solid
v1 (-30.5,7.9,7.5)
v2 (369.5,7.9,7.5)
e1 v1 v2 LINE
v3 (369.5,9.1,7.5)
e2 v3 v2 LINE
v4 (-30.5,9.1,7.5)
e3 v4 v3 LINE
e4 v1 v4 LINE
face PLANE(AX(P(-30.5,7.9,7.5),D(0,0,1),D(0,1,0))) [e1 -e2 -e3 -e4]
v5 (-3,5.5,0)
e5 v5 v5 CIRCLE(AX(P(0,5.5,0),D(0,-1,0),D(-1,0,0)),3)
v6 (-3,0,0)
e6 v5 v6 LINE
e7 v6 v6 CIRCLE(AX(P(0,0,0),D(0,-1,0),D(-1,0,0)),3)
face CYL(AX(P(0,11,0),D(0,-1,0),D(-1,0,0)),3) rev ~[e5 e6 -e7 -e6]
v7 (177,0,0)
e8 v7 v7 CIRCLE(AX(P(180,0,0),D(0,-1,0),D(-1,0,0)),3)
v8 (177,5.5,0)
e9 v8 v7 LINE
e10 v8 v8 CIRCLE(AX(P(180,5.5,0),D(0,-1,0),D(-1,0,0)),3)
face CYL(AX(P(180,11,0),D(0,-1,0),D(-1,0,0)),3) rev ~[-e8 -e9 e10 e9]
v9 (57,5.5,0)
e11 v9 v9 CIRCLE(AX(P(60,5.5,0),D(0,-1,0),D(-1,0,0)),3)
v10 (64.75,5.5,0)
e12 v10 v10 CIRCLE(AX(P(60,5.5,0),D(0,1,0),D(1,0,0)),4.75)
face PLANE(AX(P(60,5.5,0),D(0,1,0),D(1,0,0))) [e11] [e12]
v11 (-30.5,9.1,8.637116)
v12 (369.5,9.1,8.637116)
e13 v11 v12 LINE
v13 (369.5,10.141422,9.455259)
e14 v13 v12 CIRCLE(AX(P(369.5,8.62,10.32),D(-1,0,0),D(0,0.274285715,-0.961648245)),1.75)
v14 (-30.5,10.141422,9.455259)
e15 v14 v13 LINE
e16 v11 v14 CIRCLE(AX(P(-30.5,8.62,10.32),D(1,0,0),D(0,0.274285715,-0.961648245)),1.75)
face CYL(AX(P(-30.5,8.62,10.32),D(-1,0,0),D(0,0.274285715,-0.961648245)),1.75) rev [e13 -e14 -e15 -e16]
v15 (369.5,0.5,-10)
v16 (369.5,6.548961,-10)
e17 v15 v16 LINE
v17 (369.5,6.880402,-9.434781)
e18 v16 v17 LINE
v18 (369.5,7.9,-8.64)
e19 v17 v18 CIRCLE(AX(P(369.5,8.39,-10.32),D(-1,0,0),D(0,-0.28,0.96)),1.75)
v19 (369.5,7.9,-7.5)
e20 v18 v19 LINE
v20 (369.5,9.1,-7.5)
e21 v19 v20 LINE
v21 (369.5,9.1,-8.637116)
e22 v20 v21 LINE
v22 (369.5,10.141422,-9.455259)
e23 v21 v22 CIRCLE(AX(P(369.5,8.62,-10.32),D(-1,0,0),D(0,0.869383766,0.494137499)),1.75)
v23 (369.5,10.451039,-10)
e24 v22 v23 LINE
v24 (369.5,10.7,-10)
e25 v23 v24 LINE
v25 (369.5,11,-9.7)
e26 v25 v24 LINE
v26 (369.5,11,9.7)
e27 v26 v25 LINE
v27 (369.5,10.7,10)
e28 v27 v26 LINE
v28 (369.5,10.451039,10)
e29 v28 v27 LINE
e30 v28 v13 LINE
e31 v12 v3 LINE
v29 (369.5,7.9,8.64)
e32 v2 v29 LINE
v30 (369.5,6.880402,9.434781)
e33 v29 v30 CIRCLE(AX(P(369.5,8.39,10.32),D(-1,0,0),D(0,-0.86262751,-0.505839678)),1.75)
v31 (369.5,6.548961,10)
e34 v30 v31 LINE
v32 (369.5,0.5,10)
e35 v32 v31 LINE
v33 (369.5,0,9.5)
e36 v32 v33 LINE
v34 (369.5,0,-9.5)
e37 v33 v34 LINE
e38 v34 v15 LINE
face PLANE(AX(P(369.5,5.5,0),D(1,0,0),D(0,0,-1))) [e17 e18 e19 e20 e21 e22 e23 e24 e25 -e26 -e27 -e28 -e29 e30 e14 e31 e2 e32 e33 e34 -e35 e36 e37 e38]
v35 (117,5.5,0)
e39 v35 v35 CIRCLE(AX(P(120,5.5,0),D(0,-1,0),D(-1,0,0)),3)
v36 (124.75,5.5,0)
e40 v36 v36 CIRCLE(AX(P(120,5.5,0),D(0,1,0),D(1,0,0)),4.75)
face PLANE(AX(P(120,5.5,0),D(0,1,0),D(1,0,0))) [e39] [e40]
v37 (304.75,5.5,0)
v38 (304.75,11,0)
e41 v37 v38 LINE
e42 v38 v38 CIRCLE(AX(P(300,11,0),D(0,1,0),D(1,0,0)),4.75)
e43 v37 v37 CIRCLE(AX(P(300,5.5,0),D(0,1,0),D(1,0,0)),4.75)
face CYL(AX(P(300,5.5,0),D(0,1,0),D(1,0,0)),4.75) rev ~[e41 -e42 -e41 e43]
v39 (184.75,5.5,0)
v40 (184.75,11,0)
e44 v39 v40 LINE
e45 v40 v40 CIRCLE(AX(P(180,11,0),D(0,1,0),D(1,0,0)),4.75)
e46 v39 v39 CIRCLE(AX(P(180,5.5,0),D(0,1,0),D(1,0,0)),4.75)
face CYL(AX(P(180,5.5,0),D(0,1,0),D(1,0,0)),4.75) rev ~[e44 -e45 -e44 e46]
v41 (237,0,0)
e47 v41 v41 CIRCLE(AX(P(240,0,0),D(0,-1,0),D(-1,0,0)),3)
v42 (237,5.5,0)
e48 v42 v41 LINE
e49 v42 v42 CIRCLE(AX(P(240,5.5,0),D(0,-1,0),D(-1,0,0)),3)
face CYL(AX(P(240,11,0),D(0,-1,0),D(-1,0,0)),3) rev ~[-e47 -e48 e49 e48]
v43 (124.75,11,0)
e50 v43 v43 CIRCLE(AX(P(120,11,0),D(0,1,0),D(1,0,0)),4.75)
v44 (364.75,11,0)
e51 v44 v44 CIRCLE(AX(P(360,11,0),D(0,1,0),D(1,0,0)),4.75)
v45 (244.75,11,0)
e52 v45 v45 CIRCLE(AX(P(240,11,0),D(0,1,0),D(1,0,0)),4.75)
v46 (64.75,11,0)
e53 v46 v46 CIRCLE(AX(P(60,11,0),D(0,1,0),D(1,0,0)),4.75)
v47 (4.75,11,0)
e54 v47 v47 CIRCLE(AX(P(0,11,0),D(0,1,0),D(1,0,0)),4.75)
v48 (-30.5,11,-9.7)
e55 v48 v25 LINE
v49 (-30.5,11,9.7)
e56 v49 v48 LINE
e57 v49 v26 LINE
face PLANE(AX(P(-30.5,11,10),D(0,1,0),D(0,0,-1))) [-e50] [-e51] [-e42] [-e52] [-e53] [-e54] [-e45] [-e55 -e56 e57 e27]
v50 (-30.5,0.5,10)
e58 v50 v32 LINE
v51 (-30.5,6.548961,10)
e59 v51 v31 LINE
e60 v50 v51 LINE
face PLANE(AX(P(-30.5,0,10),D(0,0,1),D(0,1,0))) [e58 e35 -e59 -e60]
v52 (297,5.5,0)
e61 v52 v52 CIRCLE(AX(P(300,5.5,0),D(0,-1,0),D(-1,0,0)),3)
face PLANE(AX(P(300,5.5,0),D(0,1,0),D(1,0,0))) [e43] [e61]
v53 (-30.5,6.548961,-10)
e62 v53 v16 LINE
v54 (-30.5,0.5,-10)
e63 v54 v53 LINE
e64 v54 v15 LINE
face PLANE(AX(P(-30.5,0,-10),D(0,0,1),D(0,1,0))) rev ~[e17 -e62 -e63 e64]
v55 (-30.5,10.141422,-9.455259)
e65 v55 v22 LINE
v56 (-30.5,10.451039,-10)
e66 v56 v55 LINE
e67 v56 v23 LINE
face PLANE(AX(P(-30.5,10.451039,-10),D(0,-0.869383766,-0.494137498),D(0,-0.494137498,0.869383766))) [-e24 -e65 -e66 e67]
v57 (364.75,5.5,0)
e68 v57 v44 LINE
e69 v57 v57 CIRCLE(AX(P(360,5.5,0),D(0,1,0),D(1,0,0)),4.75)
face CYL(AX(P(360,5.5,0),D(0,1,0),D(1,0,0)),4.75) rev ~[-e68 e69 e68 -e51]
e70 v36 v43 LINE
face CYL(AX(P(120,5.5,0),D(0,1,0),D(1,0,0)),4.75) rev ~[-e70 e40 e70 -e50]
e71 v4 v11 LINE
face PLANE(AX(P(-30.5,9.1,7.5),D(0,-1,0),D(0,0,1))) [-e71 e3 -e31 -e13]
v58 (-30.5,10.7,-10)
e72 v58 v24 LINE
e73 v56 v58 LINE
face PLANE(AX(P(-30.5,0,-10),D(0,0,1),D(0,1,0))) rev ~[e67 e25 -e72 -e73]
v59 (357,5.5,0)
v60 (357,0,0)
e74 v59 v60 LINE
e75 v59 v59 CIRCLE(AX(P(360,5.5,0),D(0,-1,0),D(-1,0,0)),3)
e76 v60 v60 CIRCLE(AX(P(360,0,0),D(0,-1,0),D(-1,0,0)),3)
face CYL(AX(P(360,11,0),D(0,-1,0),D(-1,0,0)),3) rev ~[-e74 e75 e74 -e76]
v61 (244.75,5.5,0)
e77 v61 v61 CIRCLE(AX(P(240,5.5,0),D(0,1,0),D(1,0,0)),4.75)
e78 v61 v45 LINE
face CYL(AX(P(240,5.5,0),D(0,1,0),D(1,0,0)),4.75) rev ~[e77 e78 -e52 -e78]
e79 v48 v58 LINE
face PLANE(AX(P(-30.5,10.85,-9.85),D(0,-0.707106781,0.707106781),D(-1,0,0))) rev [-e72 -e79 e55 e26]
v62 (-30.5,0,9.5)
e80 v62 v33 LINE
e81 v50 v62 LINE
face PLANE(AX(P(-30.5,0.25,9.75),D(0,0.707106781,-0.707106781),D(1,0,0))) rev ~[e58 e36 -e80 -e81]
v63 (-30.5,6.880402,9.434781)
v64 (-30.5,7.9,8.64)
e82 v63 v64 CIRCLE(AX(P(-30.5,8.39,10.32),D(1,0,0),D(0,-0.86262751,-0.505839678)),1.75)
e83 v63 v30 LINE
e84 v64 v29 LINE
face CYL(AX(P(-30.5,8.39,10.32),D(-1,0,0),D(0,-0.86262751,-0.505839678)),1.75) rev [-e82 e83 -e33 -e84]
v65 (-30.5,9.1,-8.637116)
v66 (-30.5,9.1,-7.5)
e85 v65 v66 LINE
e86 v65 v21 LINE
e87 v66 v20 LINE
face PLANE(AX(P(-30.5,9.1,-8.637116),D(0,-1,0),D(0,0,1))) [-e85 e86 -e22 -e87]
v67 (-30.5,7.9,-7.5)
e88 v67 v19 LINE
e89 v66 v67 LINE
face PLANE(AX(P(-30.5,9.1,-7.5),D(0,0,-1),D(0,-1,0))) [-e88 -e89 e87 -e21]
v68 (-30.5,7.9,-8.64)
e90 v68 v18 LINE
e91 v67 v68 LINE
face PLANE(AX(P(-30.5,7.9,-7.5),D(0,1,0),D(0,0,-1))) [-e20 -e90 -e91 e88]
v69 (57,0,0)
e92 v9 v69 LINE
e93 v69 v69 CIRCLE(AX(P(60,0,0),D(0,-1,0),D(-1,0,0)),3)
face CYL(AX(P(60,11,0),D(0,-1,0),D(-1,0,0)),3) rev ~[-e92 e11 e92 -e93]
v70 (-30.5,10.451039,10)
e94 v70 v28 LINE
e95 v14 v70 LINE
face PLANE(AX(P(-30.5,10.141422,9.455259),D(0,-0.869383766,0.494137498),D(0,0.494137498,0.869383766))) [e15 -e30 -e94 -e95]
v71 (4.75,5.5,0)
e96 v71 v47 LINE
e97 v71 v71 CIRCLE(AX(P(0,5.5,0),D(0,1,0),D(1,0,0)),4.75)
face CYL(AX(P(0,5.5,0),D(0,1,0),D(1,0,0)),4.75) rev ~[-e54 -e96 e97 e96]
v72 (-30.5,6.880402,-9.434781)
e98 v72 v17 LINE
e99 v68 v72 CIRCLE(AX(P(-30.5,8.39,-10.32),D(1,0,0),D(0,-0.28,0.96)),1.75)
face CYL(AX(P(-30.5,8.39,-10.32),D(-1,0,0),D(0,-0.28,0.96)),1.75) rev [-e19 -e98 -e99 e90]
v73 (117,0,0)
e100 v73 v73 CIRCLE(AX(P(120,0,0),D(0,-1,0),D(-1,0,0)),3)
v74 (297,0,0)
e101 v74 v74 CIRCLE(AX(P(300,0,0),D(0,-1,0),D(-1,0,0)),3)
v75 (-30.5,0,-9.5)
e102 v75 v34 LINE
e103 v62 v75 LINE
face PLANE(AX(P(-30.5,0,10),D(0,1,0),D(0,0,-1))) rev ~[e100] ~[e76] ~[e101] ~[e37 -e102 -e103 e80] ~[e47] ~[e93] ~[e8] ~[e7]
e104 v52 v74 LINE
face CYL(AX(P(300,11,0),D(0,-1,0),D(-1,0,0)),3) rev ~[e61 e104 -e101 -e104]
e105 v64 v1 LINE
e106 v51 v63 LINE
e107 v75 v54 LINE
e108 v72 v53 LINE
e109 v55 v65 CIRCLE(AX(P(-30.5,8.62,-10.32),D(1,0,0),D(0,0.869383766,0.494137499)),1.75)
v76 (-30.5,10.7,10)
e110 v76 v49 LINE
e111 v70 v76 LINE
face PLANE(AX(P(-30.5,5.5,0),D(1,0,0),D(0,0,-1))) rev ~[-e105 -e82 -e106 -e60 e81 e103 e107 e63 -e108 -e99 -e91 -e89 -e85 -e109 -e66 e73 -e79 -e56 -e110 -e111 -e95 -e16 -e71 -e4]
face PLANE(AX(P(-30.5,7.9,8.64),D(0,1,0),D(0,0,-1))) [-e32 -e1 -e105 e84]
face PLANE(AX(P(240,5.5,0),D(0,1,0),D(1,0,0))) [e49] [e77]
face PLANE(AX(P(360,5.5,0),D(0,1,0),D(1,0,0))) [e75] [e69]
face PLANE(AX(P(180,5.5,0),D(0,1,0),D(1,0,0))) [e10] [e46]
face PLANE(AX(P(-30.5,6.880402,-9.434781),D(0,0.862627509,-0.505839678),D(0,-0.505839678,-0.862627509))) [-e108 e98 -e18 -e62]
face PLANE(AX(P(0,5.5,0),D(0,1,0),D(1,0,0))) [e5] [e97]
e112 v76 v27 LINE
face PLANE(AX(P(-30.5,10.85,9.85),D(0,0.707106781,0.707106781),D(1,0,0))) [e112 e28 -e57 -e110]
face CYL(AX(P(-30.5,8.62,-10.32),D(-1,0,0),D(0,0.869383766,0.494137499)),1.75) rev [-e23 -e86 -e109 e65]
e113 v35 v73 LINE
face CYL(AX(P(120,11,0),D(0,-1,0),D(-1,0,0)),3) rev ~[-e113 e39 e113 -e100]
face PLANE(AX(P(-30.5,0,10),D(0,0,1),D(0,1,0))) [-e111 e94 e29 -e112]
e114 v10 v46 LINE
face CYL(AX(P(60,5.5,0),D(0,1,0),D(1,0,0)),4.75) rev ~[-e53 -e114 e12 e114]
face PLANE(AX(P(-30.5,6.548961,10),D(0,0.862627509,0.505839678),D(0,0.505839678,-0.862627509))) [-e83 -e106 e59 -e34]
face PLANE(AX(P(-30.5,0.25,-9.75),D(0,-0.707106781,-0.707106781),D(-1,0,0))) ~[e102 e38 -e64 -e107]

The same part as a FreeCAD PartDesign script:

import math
import FreeCAD as App
import Part
import Sketcher

V = App.Vector
Q = App.Units.Quantity


def edges_at(feature, points):
    """Names of the edges that pass closest to the given points."""
    edges = feature.Shape.Edges
    near = lambda p: min(range(len(edges)), key=lambda i: edges[i].distToShape(Part.Vertex(*p))[0])
    return sorted({f"Edge{near(p) + 1}" for p in points})


def add_polygon(sketch, points):
    """Adds a closed chain of lines whose ends are joined by coincident constraints."""
    first, n = sketch.GeometryCount, len(points)
    for a, b in zip(points, points[1:] + points[:1]):
        sketch.addGeometry(Part.LineSegment(App.Vector(*a, 0), App.Vector(*b, 0)), False)
    for i in range(n):
        sketch.addConstraint(Sketcher.Constraint("Coincident", first + i, 2, first + (i + 1) % n, 1))

doc = App.newDocument("Part")
body = doc.addObject("PartDesign::Body", "Body")

sketch1 = doc.addObject("Sketcher::SketchObject", "Sketch")
body.addObject(sketch1)
sketch1.AttachmentSupport = (doc.YZ_Plane, [""])
sketch1.MapMode = "FlatFace"
sketch1.AttachmentOffset = App.Placement(V(0, 0, -30.5), App.Rotation())
add_polygon(sketch1, [(11, 10), (0, 10), (0, -10), (11, -10)])
sketch1.addConstraint([
    Sketcher.Constraint("Horizontal", 0),
    Sketcher.Constraint("Vertical", 1),
    Sketcher.Constraint("Horizontal", 2),
    Sketcher.Constraint("Vertical", 3),
    Sketcher.Constraint("Symmetric", 0, 2, 1, 2, -1, 1),
    Sketcher.Constraint("DistanceX", 0, 2, 0, 1, Q("11 mm")),
    Sketcher.Constraint("DistanceY", 1, 2, 1, 1, Q("20 mm")),
])
pad1 = doc.addObject("PartDesign::Pad", "Pad")
body.addObject(pad1)
pad1.Profile = sketch1
pad1.Length = 400

sketch2 = doc.addObject("Sketcher::SketchObject", "Sketch001")
body.addObject(sketch2)
sketch2.AttachmentSupport = (doc.YZ_Plane, [""])
sketch2.MapMode = "FlatFace"
sketch2.AttachmentOffset = App.Placement(V(0, 0, -30.5), App.Rotation())
sketch2.addGeometry([
    Part.LineSegment(V(10.5, -10, 0), V(10.1, -9.5, 0)),
    Part.ArcOfCircle(Part.Circle(V(8.6, -10.3, 0), V(0, 0, 1), 1.8), math.radians(30), math.radians(74)),
    Part.LineSegment(V(9.1, -8.6, 0), V(9.1, -7.5, 0)),
    Part.LineSegment(V(9.1, -7.5, 0), V(7.9, -7.5, 0)),
    Part.LineSegment(V(7.9, -7.5, 0), V(7.9, -8.6, 0)),
    Part.ArcOfCircle(Part.Circle(V(8.4, -10.3, 0), V(0, 0, 1), 1.8), math.radians(106), math.radians(150)),
    Part.LineSegment(V(6.9, -9.4, 0), V(6.5, -10, 0)),
    Part.LineSegment(V(6.5, -10, 0), V(10.5, -10, 0)),
    Part.LineSegment(V(10.5, 10, 0), V(6.5, 10, 0)),
    Part.LineSegment(V(6.5, 10, 0), V(6.9, 9.4, 0)),
    Part.ArcOfCircle(Part.Circle(V(8.4, 10.3, 0), V(0, 0, 1), 1.8), math.radians(-150), math.radians(-106)),
    Part.LineSegment(V(7.9, 8.6, 0), V(7.9, 7.5, 0)),
    Part.LineSegment(V(7.9, 7.5, 0), V(9.1, 7.5, 0)),
    Part.LineSegment(V(9.1, 7.5, 0), V(9.1, 8.6, 0)),
    Part.ArcOfCircle(Part.Circle(V(8.6, 10.3, 0), V(0, 0, 1), 1.8), math.radians(-74), math.radians(-30)),
    Part.LineSegment(V(10.1, 9.5, 0), V(10.5, 10, 0)),
], False)
sketch2.addConstraint([
    Sketcher.Constraint("Tangent", 0, 2, 1, 1),
    Sketcher.Constraint("Coincident", 1, 2, 2, 1),
    Sketcher.Constraint("Coincident", 2, 2, 3, 1),
    Sketcher.Constraint("Coincident", 3, 2, 4, 1),
    Sketcher.Constraint("Coincident", 4, 2, 5, 1),
    Sketcher.Constraint("Tangent", 5, 2, 6, 1),
    Sketcher.Constraint("Coincident", 6, 2, 7, 1),
    Sketcher.Constraint("Coincident", 7, 2, 0, 1),
    Sketcher.Constraint("Coincident", 8, 2, 9, 1),
    Sketcher.Constraint("Tangent", 9, 2, 10, 1),
    Sketcher.Constraint("Coincident", 10, 2, 11, 1),
    Sketcher.Constraint("Coincident", 11, 2, 12, 1),
    Sketcher.Constraint("Coincident", 12, 2, 13, 1),
    Sketcher.Constraint("Coincident", 13, 2, 14, 1),
    Sketcher.Constraint("Tangent", 14, 2, 15, 1),
    Sketcher.Constraint("Coincident", 15, 2, 8, 1),
    Sketcher.Constraint("Vertical", 2),
    Sketcher.Constraint("Horizontal", 3),
    Sketcher.Constraint("Vertical", 4),
    Sketcher.Constraint("Horizontal", 7),
    Sketcher.Constraint("Horizontal", 8),
    Sketcher.Constraint("Vertical", 11),
    Sketcher.Constraint("Horizontal", 12),
    Sketcher.Constraint("Vertical", 13),
    Sketcher.Constraint("Equal", 1, 5),
    Sketcher.Constraint("Equal", 5, 10),
    Sketcher.Constraint("Equal", 10, 14),
    Sketcher.Constraint("Symmetric", 5, 3, 10, 3, -1),
    Sketcher.Constraint("Symmetric", 1, 3, 14, 3, -1),
    Sketcher.Constraint("Symmetric", 6, 2, 8, 2, -1),
    Sketcher.Constraint("Symmetric", 3, 2, 11, 2, -1),
    Sketcher.Constraint("Horizontal", 1, 3, 5, 3),
    Sketcher.Constraint("Vertical", 2, 2, 12, 2),
    Sketcher.Constraint("Vertical", 0, 2, 14, 2),
    Sketcher.Constraint("Radius", 1, Q("1.75 mm")),
    Sketcher.Constraint("DistanceX", 3, 2, 3, 1, Q("1.2 mm")),
    Sketcher.Constraint("DistanceY", 6, 2, -1, 1, Q("10 mm")),
    Sketcher.Constraint("DistanceY", 4, 2, 4, 1, Q("1.14 mm")),
    Sketcher.Constraint("DistanceX", -1, 1, 1, 2, Q("9.1 mm")),
    Sketcher.Constraint("DistanceY", 2, 2, -1, 1, Q("7.5 mm")),
    Sketcher.Constraint("DistanceX", -1, 1, 1, 3, Q("8.62 mm")),
    Sketcher.Constraint("DistanceY", 1, 3, -1, 1, Q("10.32 mm")),
    Sketcher.Constraint("DistanceX", 7, 1, 7, 2, Q("3.902079 mm")),
    Sketcher.Constraint("DistanceX", -1, 1, 5, 2, Q("6.880402 mm")),
])
pocket1 = doc.addObject("PartDesign::Pocket", "Pocket")
body.addObject(pocket1)
pocket1.Profile = sketch2
pocket1.Type = "ThroughAll"
pocket1.Reversed = True

sketch3 = doc.addObject("Sketcher::SketchObject", "Sketch002")
body.addObject(sketch3)
sketch3.AttachmentSupport = (doc.XZ_Plane, [""])
sketch3.MapMode = "FlatFace"
sketch3.AttachmentOffset = App.Placement(V(0, 0, -11), App.Rotation())
sketch3.addGeometry(Part.Circle(V(0, 0, 0), V(0, 0, 1), 3), False)
sketch3.addConstraint([
    Sketcher.Constraint("Coincident", 0, 3, -1, 1),
    Sketcher.Constraint("Diameter", 0, Q("6 mm")),
])
doc.recompute()
hole = doc.addObject("PartDesign::Hole", "Hole")
body.addObject(hole)
hole.Profile = sketch3
hole.ThreadType = "None"
hole.Diameter = 6
hole.DepthType = "ThroughAll"
hole.HoleCutType = "Counterbore"
hole.HoleCutDiameter = 9.5
hole.HoleCutDepth = 5.5
hole.Reversed = True
doc.recompute()

linearpattern = doc.addObject("PartDesign::LinearPattern", "LinearPattern")
body.addObject(linearpattern)
linearpattern.Originals = [hole]
linearpattern.Direction = (doc.X_Axis, [""])
linearpattern.Mode = "offset"
linearpattern.Offset = 60
linearpattern.Occurrences = 7
body.Tip = linearpattern
doc.recompute()

chamfer = doc.addObject("PartDesign::Chamfer", "Chamfer")
body.addObject(chamfer)
chamfer.Base = (linearpattern, edges_at(linearpattern, [(169.5, 11, 10), (169.5, 11, -10)]))
chamfer.Size = 0.3
doc.recompute()

chamfer2 = doc.addObject("PartDesign::Chamfer", "Chamfer001")
body.addObject(chamfer2)
chamfer2.Base = (chamfer, edges_at(chamfer, [(169.5, 0, -10), (169.5, 0, 10)]))
chamfer2.Size = 0.5

doc.recompute()
